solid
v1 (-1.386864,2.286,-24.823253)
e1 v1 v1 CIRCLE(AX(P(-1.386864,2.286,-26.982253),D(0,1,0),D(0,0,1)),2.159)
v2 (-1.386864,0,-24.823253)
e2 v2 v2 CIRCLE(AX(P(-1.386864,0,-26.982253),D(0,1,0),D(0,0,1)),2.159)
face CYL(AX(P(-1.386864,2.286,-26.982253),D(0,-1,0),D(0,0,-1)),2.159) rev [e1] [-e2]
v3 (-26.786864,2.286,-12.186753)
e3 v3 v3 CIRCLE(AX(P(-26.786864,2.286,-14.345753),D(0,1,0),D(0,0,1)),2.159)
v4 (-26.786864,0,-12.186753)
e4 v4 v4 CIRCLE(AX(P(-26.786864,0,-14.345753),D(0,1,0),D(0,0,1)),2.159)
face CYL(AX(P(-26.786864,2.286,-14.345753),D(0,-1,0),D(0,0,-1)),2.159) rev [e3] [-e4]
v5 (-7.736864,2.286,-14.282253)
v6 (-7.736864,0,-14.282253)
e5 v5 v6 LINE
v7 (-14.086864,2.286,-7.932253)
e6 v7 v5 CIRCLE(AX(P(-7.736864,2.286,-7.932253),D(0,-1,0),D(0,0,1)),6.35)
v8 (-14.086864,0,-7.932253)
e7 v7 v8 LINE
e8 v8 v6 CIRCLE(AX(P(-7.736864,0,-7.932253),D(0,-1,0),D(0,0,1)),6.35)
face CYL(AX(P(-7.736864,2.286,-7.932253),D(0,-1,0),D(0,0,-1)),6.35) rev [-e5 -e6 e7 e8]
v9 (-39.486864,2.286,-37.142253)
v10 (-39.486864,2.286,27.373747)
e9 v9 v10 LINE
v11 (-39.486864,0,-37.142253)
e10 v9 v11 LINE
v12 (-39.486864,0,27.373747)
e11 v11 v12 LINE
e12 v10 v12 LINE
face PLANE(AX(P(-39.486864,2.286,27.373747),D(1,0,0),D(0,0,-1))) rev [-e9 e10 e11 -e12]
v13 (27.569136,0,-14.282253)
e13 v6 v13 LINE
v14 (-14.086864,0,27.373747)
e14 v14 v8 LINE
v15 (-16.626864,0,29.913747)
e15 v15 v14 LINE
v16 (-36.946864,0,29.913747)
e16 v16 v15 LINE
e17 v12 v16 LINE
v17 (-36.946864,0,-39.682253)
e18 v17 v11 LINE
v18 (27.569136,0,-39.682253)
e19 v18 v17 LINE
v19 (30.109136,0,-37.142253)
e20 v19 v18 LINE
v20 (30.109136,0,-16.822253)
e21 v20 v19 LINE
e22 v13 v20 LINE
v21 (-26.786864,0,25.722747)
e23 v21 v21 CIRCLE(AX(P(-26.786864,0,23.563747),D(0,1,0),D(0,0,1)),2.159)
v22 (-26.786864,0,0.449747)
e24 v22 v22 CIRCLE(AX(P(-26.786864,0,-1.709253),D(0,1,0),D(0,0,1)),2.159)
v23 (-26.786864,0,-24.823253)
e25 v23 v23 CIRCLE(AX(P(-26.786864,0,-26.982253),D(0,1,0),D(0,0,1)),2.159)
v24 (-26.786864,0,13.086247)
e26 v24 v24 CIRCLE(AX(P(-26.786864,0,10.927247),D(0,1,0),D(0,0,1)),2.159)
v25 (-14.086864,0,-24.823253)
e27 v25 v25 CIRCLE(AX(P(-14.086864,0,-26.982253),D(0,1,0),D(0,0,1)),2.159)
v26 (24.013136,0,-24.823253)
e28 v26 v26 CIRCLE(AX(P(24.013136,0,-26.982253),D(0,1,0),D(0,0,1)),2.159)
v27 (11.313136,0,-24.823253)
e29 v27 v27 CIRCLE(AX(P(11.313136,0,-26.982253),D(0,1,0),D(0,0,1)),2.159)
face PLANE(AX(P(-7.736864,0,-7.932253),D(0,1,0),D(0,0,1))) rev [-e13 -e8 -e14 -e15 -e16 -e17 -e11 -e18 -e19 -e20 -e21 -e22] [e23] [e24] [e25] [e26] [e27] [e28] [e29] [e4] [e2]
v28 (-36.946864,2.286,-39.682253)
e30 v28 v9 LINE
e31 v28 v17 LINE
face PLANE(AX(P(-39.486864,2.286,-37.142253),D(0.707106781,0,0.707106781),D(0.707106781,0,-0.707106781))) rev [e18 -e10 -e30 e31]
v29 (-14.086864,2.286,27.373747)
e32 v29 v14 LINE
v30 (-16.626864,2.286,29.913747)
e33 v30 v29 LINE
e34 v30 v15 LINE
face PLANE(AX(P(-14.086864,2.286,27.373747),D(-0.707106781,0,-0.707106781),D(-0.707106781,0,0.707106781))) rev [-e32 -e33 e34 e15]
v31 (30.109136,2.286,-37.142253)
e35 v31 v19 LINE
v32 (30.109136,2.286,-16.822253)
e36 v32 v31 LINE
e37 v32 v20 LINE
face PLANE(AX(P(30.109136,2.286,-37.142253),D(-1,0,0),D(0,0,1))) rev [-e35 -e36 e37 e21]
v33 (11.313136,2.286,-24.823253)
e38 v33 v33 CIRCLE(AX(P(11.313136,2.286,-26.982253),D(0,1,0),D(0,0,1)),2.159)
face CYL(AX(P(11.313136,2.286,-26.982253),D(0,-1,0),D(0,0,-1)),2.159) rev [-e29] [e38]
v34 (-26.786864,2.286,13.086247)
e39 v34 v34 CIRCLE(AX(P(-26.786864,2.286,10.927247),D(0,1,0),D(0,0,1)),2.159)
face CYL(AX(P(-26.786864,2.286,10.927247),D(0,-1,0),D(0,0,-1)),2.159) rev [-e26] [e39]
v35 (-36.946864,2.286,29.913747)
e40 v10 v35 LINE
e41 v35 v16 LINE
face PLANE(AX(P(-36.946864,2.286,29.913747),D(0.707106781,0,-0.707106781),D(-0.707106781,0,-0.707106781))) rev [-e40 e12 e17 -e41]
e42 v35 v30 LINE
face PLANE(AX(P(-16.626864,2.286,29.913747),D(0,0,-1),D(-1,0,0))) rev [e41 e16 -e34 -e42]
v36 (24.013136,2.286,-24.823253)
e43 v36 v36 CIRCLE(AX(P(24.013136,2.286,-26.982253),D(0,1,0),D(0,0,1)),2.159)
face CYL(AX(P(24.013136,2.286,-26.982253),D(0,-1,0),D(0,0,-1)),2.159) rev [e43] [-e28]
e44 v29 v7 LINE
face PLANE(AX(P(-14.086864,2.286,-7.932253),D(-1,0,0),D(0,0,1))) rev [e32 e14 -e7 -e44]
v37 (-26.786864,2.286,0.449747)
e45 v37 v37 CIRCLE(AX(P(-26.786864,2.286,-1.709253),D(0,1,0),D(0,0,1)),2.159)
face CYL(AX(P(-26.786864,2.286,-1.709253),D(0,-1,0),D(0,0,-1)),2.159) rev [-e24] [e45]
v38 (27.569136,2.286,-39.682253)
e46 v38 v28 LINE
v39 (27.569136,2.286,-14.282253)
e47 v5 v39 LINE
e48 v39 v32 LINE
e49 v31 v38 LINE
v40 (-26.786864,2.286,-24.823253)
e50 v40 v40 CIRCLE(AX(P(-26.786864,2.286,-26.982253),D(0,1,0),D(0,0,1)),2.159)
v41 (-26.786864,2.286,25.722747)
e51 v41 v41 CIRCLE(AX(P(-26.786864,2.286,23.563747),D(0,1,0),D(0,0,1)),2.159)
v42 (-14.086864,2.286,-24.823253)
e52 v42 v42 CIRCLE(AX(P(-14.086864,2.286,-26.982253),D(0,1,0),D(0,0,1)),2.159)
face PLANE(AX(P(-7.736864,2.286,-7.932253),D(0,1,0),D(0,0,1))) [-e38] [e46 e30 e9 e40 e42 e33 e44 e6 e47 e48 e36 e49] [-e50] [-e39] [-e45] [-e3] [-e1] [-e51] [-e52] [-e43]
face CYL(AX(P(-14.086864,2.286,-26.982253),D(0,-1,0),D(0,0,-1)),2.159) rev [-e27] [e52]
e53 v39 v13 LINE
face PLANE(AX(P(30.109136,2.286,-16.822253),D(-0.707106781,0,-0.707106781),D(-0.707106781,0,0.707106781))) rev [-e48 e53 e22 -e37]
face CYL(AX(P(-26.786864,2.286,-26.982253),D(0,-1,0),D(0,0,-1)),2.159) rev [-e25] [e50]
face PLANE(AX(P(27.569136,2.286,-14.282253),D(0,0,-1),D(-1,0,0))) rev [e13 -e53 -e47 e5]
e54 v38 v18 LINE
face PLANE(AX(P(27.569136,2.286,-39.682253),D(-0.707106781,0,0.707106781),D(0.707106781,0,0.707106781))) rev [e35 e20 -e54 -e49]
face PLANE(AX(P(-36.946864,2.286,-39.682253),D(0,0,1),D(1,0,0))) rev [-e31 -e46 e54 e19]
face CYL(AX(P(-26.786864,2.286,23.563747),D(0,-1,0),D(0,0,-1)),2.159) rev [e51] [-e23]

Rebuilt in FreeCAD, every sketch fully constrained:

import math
import FreeCAD as App
import Part
import Sketcher
Q = App.Units.Quantity

doc = App.newDocument("Part")
params = doc.addObject("Spreadsheet::Sheet", "Params")
for row, (alias, value) in enumerate([
    ("sketch1_diameter", "0.17 in"),
    ("sketch1_radius", "0.25 in"),
    ("sketch1_width", "0.8 in"),
    ("sketch1_width2", "1.39 in"),
    ("pad1_length", "0.09 in"),
], start=1):
    params.set(f"A{row}", alias)
    params.set(f"B{row}", "=" + value)
    params.setAlias(f"B{row}", alias)

body = doc.addObject("PartDesign::Body", "Body")

# Sketch on XZ plane
sketch1 = body.newObject("Sketcher::SketchObject", "Sketch")
sketch1.AttachmentSupport = (doc.getObject("XZ_Plane"), [""])
sketch1.MapMode = "FlatFace"
sketch1.addGeometry(Part.LineSegment(App.Vector(-39.5, -37.1, 0), App.Vector(-39.5, 27.4, 0)), False)
sketch1.addGeometry(Part.LineSegment(App.Vector(-39.5, 27.4, 0), App.Vector(-36.9, 29.9, 0)), False)
sketch1.addGeometry(Part.LineSegment(App.Vector(-36.9, 29.9, 0), App.Vector(-16.6, 29.9, 0)), False)
sketch1.addGeometry(Part.LineSegment(App.Vector(-16.6, 29.9, 0), App.Vector(-14.1, 27.4, 0)), False)
sketch1.addGeometry(Part.LineSegment(App.Vector(-14.1, 27.4, 0), App.Vector(-14.1, -7.9, 0)), False)
sketch1.addGeometry(Part.ArcOfCircle(Part.Circle(App.Vector(-7.7, -7.9, 0), App.Vector(0, 0, 1), 6.3), math.radians(180), math.radians(270)), False)
sketch1.addGeometry(Part.LineSegment(App.Vector(-7.7, -14.3, 0), App.Vector(27.6, -14.3, 0)), False)
sketch1.addGeometry(Part.LineSegment(App.Vector(27.6, -14.3, 0), App.Vector(30.1, -16.8, 0)), False)
sketch1.addGeometry(Part.LineSegment(App.Vector(30.1, -16.8, 0), App.Vector(30.1, -37.1, 0)), False)
sketch1.addGeometry(Part.LineSegment(App.Vector(30.1, -37.1, 0), App.Vector(27.6, -39.7, 0)), False)
sketch1.addGeometry(Part.LineSegment(App.Vector(27.6, -39.7, 0), App.Vector(-36.9, -39.7, 0)), False)
sketch1.addGeometry(Part.LineSegment(App.Vector(-36.9, -39.7, 0), App.Vector(-39.5, -37.1, 0)), False)
sketch1.addGeometry(Part.Circle(App.Vector(-26.8, 23.6, 0), App.Vector(0, 0, 1), 2.2), False)
sketch1.addGeometry(Part.Circle(App.Vector(-26.8, 10.9, 0), App.Vector(0, 0, 1), 2.2), False)
sketch1.addGeometry(Part.Circle(App.Vector(-26.8, -1.7, 0), App.Vector(0, 0, 1), 2.2), False)
sketch1.addGeometry(Part.Circle(App.Vector(24, -27, 0), App.Vector(0, 0, 1), 2.2), False)
sketch1.addGeometry(Part.Circle(App.Vector(11.3, -27, 0), App.Vector(0, 0, 1), 2.2), False)
sketch1.addGeometry(Part.Circle(App.Vector(-26.8, -14.3, 0), App.Vector(0, 0, 1), 2.2), False)
sketch1.addGeometry(Part.Circle(App.Vector(-1.4, -27, 0), App.Vector(0, 0, 1), 2.2), False)
sketch1.addGeometry(Part.Circle(App.Vector(-14.1, -27, 0), App.Vector(0, 0, 1), 2.2), False)
sketch1.addGeometry(Part.Circle(App.Vector(-26.8, -27, 0), App.Vector(0, 0, 1), 2.2), False)
sketch1.addConstraint(Sketcher.Constraint("Coincident", 0, 2, 1, 1))
sketch1.addConstraint(Sketcher.Constraint("Coincident", 1, 2, 2, 1))
sketch1.addConstraint(Sketcher.Constraint("Coincident", 2, 2, 3, 1))
sketch1.addConstraint(Sketcher.Constraint("Coincident", 3, 2, 4, 1))
sketch1.addConstraint(Sketcher.Constraint("Tangent", 4, 2, 5, 1))
sketch1.addConstraint(Sketcher.Constraint("Tangent", 5, 2, 6, 1))
sketch1.addConstraint(Sketcher.Constraint("Coincident", 6, 2, 7, 1))
sketch1.addConstraint(Sketcher.Constraint("Coincident", 7, 2, 8, 1))
sketch1.addConstraint(Sketcher.Constraint("Coincident", 8, 2, 9, 1))
sketch1.addConstraint(Sketcher.Constraint("Coincident", 9, 2, 10, 1))
sketch1.addConstraint(Sketcher.Constraint("Coincident", 10, 2, 11, 1))
sketch1.addConstraint(Sketcher.Constraint("Coincident", 11, 2, 0, 1))
sketch1.addConstraint(Sketcher.Constraint("Vertical", 0))
sketch1.addConstraint(Sketcher.Constraint("Horizontal", 2))
sketch1.addConstraint(Sketcher.Constraint("Vertical", 4))
sketch1.addConstraint(Sketcher.Constraint("Horizontal", 6))
sketch1.addConstraint(Sketcher.Constraint("Vertical", 8))
sketch1.addConstraint(Sketcher.Constraint("Horizontal", 10))
sketch1.addConstraint(Sketcher.Constraint("Equal", 12, 13))
sketch1.addConstraint(Sketcher.Constraint("Equal", 13, 14))
sketch1.addConstraint(Sketcher.Constraint("Equal", 14, 15))
sketch1.addConstraint(Sketcher.Constraint("Equal", 15, 16))
sketch1.addConstraint(Sketcher.Constraint("Equal", 16, 17))
sketch1.addConstraint(Sketcher.Constraint("Equal", 17, 18))
sketch1.addConstraint(Sketcher.Constraint("Equal", 18, 19))
sketch1.addConstraint(Sketcher.Constraint("Equal", 19, 20))
sketch1.addConstraint(Sketcher.Constraint("Perpendicular", 1, 3))
sketch1.addConstraint(Sketcher.Constraint("Parallel", 3, 7))
sketch1.addConstraint(Sketcher.Constraint("Perpendicular", 7, 9))
sketch1.addConstraint(Sketcher.Constraint("Perpendicular", 9, 11))
sketch1.addConstraint(Sketcher.Constraint("Horizontal", 15, 3, 16, 3))
sketch1.addConstraint(Sketcher.Constraint("Horizontal", 16, 3, 18, 3))
sketch1.addConstraint(Sketcher.Constraint("Horizontal", 18, 3, 19, 3))
sketch1.addConstraint(Sketcher.Constraint("Horizontal", 19, 3, 20, 3))
sketch1.addConstraint(Sketcher.Constraint("Horizontal", 0, 2, 3, 2))
sketch1.addConstraint(Sketcher.Constraint("Horizontal", 8, 2, 11, 2))
sketch1.addConstraint(Sketcher.Constraint("Vertical", 12, 3, 13, 3))
sketch1.addConstraint(Sketcher.Constraint("Vertical", 13, 3, 14, 3))
sketch1.addConstraint(Sketcher.Constraint("Vertical", 14, 3, 17, 3))
sketch1.addConstraint(Sketcher.Constraint("Vertical", 17, 3, 20, 3))
sketch1.addConstraint(Sketcher.Constraint("Vertical", 19, 3, 3, 2))
sketch1.addConstraint(Sketcher.Constraint("Vertical", 6, 2, 9, 2))
sketch1.addConstraint(Sketcher.Constraint("Vertical", 1, 2, 10, 2))
sketch1.addConstraint(Sketcher.Constraint("Equal", 10, 0))
sketch1.addConstraint(Sketcher.Constraint("Equal", 6, 4))
sketch1.addConstraint(Sketcher.Constraint("Equal", 2, 8))
sketch1.addConstraint(Sketcher.Constraint("Diameter", 12, Q("0.17 in")))
sketch1.addConstraint(Sketcher.Constraint("Radius", 5, Q("0.25 in")))
sketch1.addConstraint(Sketcher.Constraint("DistanceX", 2, 1, 2, 2, Q("0.8 in")))
sketch1.addConstraint(Sketcher.Constraint("DistanceX", 14, 3, 15, 3, Q("2 in")))
sketch1.addConstraint(Sketcher.Constraint("DistanceX", 18, 3, 15, 3, Q("1 in")))
sketch1.addConstraint(Sketcher.Constraint("DistanceX", 19, 3, 16, 3, Q("1 in")))
sketch1.addConstraint(Sketcher.Constraint("DistanceX", 0, 2, 3, 2, Q("1 in")))
sketch1.addConstraint(Sketcher.Constraint("DistanceX", 6, 1, 6, 2, Q("1.39 in")))
sketch1.addConstraint(Sketcher.Constraint("DistanceX", 16, 3, 15, 3, Q("0.5 in")))
sketch1.addConstraint(Sketcher.Constraint("DistanceY", 18, 3, 5, 2, Q("0.5 in")))
sketch1.addConstraint(Sketcher.Constraint("DistanceY", 5, 3, 12, 3, Q("1.24 in")))
sketch1.addConstraint(Sketcher.Constraint("DistanceY", 5, 3, 14, 3, Q("0.245 in")))
sketch1.addConstraint(Sketcher.Constraint("DistanceY", 17, 3, 13, 3, Q("0.995 in")))
sketch1.addConstraint(Sketcher.Constraint("DistanceY", 13, 3, 12, 3, Q("0.4975 in")))
sketch1.addConstraint(Sketcher.Constraint("DistanceX", 5, 3, -1, 1, 7.736864))
sketch1.addConstraint(Sketcher.Constraint("DistanceY", 5, 3, -1, 1, 7.932253))
sketch1.setExpression("Constraints[46]", "Params.sketch1_diameter")
sketch1.setExpression("Constraints[47]", "Params.sketch1_radius")
sketch1.setExpression("Constraints[48]", "Params.sketch1_width")
sketch1.setExpression("Constraints[53]", "Params.sketch1_width2")
pad1 = body.newObject("PartDesign::Pad", "Pad")
pad1.Profile = sketch1
pad1.setExpression("Length", "Params.pad1_length")
pad1.Reversed = True

doc.recompute()
